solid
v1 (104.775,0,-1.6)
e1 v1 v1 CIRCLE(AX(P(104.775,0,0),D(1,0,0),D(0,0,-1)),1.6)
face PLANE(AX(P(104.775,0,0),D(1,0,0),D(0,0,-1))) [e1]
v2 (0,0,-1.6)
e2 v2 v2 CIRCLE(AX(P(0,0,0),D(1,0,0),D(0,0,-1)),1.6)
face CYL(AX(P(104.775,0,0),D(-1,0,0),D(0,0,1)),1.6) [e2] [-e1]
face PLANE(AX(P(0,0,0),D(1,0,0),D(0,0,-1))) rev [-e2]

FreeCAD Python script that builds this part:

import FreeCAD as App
import Part
import Sketcher

doc = App.newDocument("Part")
body = doc.addObject("PartDesign::Body", "Body")

# Sketch on YZ plane
sketch1 = doc.addObject("Sketcher::SketchObject", "Sketch")
body.addObject(sketch1)
sketch1.AttachmentSupport = (doc.YZ_Plane, [""])
sketch1.MapMode = "FlatFace"
sketch1.addGeometry(Part.Circle(App.Vector(0, 0, 0), App.Vector(0, 0, 1), 1.6), False)
sketch1.addConstraint([
    Sketcher.Constraint("Coincident", 0, 3, -1, 1),
    Sketcher.Constraint("Diameter", 0, 3.2),
])
pad1 = doc.addObject("PartDesign::Pad", "Pad")
body.addObject(pad1)
pad1.Profile = sketch1
pad1.Length = 104.775

doc.recompute()
